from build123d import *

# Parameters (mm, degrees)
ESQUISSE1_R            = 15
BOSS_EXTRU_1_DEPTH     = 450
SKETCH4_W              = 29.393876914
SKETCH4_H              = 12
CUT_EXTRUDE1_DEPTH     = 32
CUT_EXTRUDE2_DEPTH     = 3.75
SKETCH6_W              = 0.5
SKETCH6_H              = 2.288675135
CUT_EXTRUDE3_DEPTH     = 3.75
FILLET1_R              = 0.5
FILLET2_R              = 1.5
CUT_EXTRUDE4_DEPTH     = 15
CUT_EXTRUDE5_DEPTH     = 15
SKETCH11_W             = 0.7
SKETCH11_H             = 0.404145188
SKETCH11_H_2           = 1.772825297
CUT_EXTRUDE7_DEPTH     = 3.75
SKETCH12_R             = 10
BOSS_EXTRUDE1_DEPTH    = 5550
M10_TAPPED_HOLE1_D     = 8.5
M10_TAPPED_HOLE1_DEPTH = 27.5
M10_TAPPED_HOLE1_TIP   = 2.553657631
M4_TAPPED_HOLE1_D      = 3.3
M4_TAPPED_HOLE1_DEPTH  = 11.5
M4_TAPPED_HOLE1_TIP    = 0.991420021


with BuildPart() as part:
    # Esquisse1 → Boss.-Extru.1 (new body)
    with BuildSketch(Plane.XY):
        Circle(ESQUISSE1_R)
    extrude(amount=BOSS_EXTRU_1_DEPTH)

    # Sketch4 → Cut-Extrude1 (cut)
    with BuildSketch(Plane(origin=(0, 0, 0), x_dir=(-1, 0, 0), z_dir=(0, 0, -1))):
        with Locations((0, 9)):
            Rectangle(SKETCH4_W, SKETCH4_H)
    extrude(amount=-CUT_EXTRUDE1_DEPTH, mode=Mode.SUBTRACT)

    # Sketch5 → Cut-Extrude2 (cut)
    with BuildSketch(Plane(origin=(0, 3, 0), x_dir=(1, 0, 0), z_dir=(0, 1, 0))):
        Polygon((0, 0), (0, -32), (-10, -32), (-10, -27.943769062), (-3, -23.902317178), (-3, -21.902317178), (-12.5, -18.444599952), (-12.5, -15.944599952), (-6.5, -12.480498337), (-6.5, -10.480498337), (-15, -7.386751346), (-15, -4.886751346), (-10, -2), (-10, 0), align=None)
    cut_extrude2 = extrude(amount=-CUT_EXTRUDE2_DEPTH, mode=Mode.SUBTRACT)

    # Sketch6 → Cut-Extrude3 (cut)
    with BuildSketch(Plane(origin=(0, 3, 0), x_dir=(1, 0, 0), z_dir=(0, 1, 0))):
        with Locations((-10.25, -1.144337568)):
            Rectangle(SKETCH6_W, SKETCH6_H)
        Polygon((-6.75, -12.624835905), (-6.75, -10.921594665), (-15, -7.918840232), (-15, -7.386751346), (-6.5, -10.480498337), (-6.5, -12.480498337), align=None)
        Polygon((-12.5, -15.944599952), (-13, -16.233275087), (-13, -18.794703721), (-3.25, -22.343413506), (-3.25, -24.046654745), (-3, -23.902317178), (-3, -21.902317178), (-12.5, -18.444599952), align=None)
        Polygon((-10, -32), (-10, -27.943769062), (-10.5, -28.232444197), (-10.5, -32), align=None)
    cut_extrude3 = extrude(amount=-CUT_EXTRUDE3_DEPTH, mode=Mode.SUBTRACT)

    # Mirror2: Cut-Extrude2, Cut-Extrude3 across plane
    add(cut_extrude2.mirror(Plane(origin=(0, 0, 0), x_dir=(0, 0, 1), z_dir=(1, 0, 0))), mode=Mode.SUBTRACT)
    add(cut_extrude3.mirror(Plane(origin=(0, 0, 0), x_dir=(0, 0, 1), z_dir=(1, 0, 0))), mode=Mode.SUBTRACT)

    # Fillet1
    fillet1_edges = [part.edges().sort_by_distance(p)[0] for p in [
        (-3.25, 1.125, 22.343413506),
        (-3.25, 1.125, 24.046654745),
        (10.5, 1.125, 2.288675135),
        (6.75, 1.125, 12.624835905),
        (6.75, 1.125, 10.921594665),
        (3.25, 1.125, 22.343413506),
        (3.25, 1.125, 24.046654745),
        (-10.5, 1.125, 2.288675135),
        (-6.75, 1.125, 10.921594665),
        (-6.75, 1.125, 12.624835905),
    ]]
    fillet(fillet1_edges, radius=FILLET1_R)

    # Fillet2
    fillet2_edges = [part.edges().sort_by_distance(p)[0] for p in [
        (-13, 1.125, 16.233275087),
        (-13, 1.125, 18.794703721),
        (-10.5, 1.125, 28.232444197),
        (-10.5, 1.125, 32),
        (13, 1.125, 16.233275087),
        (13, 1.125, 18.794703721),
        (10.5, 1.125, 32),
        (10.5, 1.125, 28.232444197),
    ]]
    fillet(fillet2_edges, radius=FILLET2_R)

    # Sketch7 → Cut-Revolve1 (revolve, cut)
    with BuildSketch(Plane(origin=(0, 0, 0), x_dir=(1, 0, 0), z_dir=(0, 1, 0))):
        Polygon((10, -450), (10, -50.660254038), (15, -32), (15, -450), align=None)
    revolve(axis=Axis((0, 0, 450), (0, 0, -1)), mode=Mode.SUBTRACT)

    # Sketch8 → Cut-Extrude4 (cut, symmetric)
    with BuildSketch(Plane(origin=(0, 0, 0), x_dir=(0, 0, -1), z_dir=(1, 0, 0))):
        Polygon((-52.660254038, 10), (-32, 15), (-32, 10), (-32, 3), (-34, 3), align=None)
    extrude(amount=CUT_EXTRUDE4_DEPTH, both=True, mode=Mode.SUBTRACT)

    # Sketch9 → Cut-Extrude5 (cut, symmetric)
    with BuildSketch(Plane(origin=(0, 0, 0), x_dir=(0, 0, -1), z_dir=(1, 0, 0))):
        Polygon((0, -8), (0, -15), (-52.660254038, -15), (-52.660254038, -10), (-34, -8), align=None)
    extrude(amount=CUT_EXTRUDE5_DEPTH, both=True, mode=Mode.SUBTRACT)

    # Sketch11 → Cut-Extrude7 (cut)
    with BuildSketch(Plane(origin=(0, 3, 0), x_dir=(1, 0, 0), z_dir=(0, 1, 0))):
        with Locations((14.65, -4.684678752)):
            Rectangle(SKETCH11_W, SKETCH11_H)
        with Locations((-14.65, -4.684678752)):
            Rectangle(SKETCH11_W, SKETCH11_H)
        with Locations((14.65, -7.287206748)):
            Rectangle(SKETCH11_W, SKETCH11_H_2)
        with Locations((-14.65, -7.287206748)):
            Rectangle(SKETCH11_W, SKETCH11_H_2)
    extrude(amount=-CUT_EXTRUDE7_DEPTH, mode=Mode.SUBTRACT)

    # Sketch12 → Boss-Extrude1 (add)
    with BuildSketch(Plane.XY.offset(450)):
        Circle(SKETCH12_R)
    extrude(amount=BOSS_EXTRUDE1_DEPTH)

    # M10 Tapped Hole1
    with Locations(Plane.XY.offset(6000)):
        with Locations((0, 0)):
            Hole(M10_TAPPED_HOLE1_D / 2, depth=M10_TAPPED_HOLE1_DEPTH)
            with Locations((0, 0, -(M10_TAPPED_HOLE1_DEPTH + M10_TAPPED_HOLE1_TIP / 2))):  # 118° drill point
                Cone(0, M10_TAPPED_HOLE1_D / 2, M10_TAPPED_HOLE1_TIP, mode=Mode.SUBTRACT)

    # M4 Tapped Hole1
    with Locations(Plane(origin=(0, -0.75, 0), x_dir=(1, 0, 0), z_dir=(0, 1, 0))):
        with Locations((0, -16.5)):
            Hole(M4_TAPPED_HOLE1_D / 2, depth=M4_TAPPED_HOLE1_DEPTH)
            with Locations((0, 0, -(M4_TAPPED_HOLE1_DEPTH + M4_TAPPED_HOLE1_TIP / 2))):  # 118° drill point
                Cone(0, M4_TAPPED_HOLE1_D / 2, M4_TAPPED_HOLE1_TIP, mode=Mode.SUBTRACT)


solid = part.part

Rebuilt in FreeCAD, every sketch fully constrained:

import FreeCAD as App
import Part
import Sketcher
from FreeCAD import Vector
Q = App.Units.Quantity


def edges_at(feature, points):
    """Names of the edges that pass closest to the given points."""
    edges = feature.Shape.Edges
    near = lambda p: min(range(len(edges)), key=lambda i: edges[i].distToShape(Part.Vertex(*p))[0])
    return sorted({f"Edge{near(p) + 1}" for p in points})


def add_polygon(sketch, points):
    """Adds a closed chain of lines whose ends are joined by coincident constraints."""
    first, n = sketch.GeometryCount, len(points)
    for a, b in zip(points, points[1:] + points[:1]):
        sketch.addGeometry(Part.LineSegment(App.Vector(*a, 0), App.Vector(*b, 0)), False)
    for i in range(n):
        sketch.addConstraint(Sketcher.Constraint("Coincident", first + i, 2, first + (i + 1) % n, 1))

doc = App.newDocument("Part")
body = doc.addObject("PartDesign::Body", "Body")

sketch1 = doc.addObject("Sketcher::SketchObject", "Sketch")
body.addObject(sketch1)
sketch1.AttachmentSupport = (doc.XY_Plane, [""])
sketch1.MapMode = "FlatFace"
sketch1.addGeometry(Part.Circle(Vector(0, 0, 0), Vector(0, 0, 1), 15), False)
sketch1.addConstraint(Sketcher.Constraint("Coincident", 0, 3, -1, 1))
sketch1.addConstraint(Sketcher.Constraint("Diameter", 0, Q("30 mm")))
pad1 = doc.addObject("PartDesign::Pad", "Pad")
body.addObject(pad1)
pad1.Profile = sketch1
pad1.Length = 450

sketch2 = doc.addObject("Sketcher::SketchObject", "Sketch001")
body.addObject(sketch2)
sketch2.AttachmentSupport = (doc.XY_Plane, [""])
sketch2.MapMode = "FlatFace"
add_polygon(sketch2, [(15, 15), (15, 3), (-15, 3), (-15, 15)])
sketch2.addConstraint(Sketcher.Constraint("Vertical", 0))
sketch2.addConstraint(Sketcher.Constraint("Horizontal", 1))
sketch2.addConstraint(Sketcher.Constraint("Vertical", 2))
sketch2.addConstraint(Sketcher.Constraint("Horizontal", 3))
sketch2.addConstraint(Sketcher.Constraint("DistanceY", 0, 2, 0, 1, Q("12 mm")))
sketch2.addConstraint(Sketcher.Constraint("DistanceY", -1, 1, 0, 2, Q("3 mm")))
sketch2.addConstraint(Sketcher.Constraint("DistanceX", 1, 2, 1, 1, Q("29.393877 mm")))
sketch2.addConstraint(Sketcher.Constraint("DistanceX", -1, 1, 0, 2, Q("14.696938 mm")))
pocket1 = doc.addObject("PartDesign::Pocket", "Pocket")
body.addObject(pocket1)
pocket1.Profile = sketch2
pocket1.Length = 32
pocket1.Reversed = True

sketch3 = doc.addObject("Sketcher::SketchObject", "Sketch002")
body.addObject(sketch3)
sketch3.AttachmentSupport = (doc.XZ_Plane, [""])
sketch3.MapMode = "FlatFace"
sketch3.AttachmentOffset = App.Placement(Vector(0, 0, -3), App.Rotation())
add_polygon(sketch3, [(0, 32), (0, 0), (-10, 0), (-10, 2), (-15, 4.9), (-15, 7.4), (-6.5, 10.5), (-6.5, 12.5), (-12.5, 15.9), (-12.5, 18.4), (-3, 21.9), (-3, 23.9), (-10, 27.9), (-10, 32)])
sketch3.addConstraint(Sketcher.Constraint("Vertical", 0))
sketch3.addConstraint(Sketcher.Constraint("Horizontal", 1))
sketch3.addConstraint(Sketcher.Constraint("Vertical", 2))
sketch3.addConstraint(Sketcher.Constraint("Vertical", 4))
sketch3.addConstraint(Sketcher.Constraint("Vertical", 6))
sketch3.addConstraint(Sketcher.Constraint("Vertical", 8))
sketch3.addConstraint(Sketcher.Constraint("Vertical", 10))
sketch3.addConstraint(Sketcher.Constraint("Vertical", 12))
sketch3.addConstraint(Sketcher.Constraint("Horizontal", 13))
sketch3.addConstraint(Sketcher.Constraint("Coincident", 0, 2, -1, 1))
sketch3.addConstraint(Sketcher.Constraint("Parallel", 3, 7))
sketch3.addConstraint(Sketcher.Constraint("Parallel", 5, 9))
sketch3.addConstraint(Sketcher.Constraint("Parallel", 7, 11))
sketch3.addConstraint(Sketcher.Constraint("Vertical", 2, 2, 11, 2))
sketch3.addConstraint(Sketcher.Constraint("Equal", 2, 6))
sketch3.addConstraint(Sketcher.Constraint("Equal", 4, 8))
sketch3.addConstraint(Sketcher.Constraint("Equal", 6, 10))
sketch3.addConstraint(Sketcher.Constraint("DistanceX", 1, 2, 1, 1, Q("10 mm")))
sketch3.addConstraint(Sketcher.Constraint("DistanceY", 0, 2, 0, 1, Q("32 mm")))
sketch3.addConstraint(Sketcher.Constraint("DistanceY", 2, 1, 2, 2, Q("2 mm")))
sketch3.addConstraint(Sketcher.Constraint("Angle", 3, Q("150 deg")))
sketch3.addConstraint(Sketcher.Constraint("Angle", 5, Q("20 deg")))
sketch3.addConstraint(Sketcher.Constraint("DistanceY", 4, 1, 4, 2, Q("2.5 mm")))
sketch3.addConstraint(Sketcher.Constraint("DistanceX", 3, 2, -1, 1, Q("15 mm")))
sketch3.addConstraint(Sketcher.Constraint("DistanceX", 9, 2, -1, 1, Q("3 mm")))
sketch3.addConstraint(Sketcher.Constraint("DistanceX", 7, 2, 6, 2, Q("6 mm")))
sketch3.addConstraint(Sketcher.Constraint("DistanceX", 5, 2, -1, 1, Q("6.5 mm")))
pocket2 = doc.addObject("PartDesign::Pocket", "Pocket001")
body.addObject(pocket2)
pocket2.Profile = sketch3
pocket2.Length = 3.75
pocket2.Reversed = True

sketch4 = doc.addObject("Sketcher::SketchObject", "Sketch003")
body.addObject(sketch4)
sketch4.AttachmentSupport = (doc.XZ_Plane, [""])
sketch4.MapMode = "FlatFace"
sketch4.AttachmentOffset = App.Placement(Vector(0, 0, -3), App.Rotation())
add_polygon(sketch4, [(-10.5, 0), (-10.5, 2.29), (-10, 2.29), (-10, 0)])
add_polygon(sketch4, [(-6.75, 10.92), (-6.75, 12.62), (-6.5, 12.48), (-6.5, 10.48), (-15, 7.39), (-15, 7.92)])
add_polygon(sketch4, [(-12.5, 15.94), (-13, 16.23), (-13, 18.79), (-3.25, 22.34), (-3.25, 24.05), (-3, 23.9), (-3, 21.9), (-12.5, 18.44)])
add_polygon(sketch4, [(-10, 32), (-10, 27.94), (-10.5, 28.23), (-10.5, 32)])
sketch4.addConstraint(Sketcher.Constraint("Vertical", 0))
sketch4.addConstraint(Sketcher.Constraint("Horizontal", 1))
sketch4.addConstraint(Sketcher.Constraint("Vertical", 2))
sketch4.addConstraint(Sketcher.Constraint("Horizontal", 3))
sketch4.addConstraint(Sketcher.Constraint("Vertical", 4))
sketch4.addConstraint(Sketcher.Constraint("Vertical", 6))
sketch4.addConstraint(Sketcher.Constraint("Vertical", 8))
sketch4.addConstraint(Sketcher.Constraint("Vertical", 11))
sketch4.addConstraint(Sketcher.Constraint("Vertical", 13))
sketch4.addConstraint(Sketcher.Constraint("Vertical", 15))
sketch4.addConstraint(Sketcher.Constraint("Vertical", 17))
sketch4.addConstraint(Sketcher.Constraint("Vertical", 18))
sketch4.addConstraint(Sketcher.Constraint("Vertical", 20))
sketch4.addConstraint(Sketcher.Constraint("Horizontal", 21))
sketch4.addConstraint(Sketcher.Constraint("PointOnObject", 2, 2, -1))
sketch4.addConstraint(Sketcher.Constraint("Parallel", 7, 9))
sketch4.addConstraint(Sketcher.Constraint("Parallel", 5, 10))
sketch4.addConstraint(Sketcher.Constraint("Parallel", 9, 12))
sketch4.addConstraint(Sketcher.Constraint("Parallel", 10, 14))
sketch4.addConstraint(Sketcher.Constraint("Parallel", 12, 16))
sketch4.addConstraint(Sketcher.Constraint("Parallel", 14, 19))
sketch4.addConstraint(Sketcher.Constraint("Vertical", 2, 2, 18, 2))
sketch4.addConstraint(Sketcher.Constraint("Vertical", 3, 2, 19, 2))
sketch4.addConstraint(Sketcher.Constraint("Equal", 4, 13))
sketch4.addConstraint(Sketcher.Constraint("Equal", 6, 15))
sketch4.addConstraint(Sketcher.Constraint("Equal", 5, 14))
sketch4.addConstraint(Sketcher.Constraint("Equal", 10, 19))
sketch4.addConstraint(Sketcher.Constraint("DistanceY", 6, 2, 6, 1, Q("2 mm")))
sketch4.addConstraint(Sketcher.Constraint("Angle", 5, Q("-30 deg")))
sketch4.addConstraint(Sketcher.Constraint("Angle", 7, Q("-160 deg")))
sketch4.addConstraint(Sketcher.Constraint("DistanceX", 1, 1, 1, 2, Q("0.5 mm")))
sketch4.addConstraint(Sketcher.Constraint("DistanceY", 17, 2, 17, 1, Q("2.5 mm")))
sketch4.addConstraint(Sketcher.Constraint("DistanceX", 1, 2, -1, 1, Q("10 mm")))
sketch4.addConstraint(Sketcher.Constraint("DistanceX", 7, 2, -1, 1, Q("15 mm")))
sketch4.addConstraint(Sketcher.Constraint("DistanceX", 10, 2, -1, 1, Q("13 mm")))
sketch4.addConstraint(Sketcher.Constraint("DistanceX", 14, 2, -1, 1, Q("3 mm")))
sketch4.addConstraint(Sketcher.Constraint("DistanceY", -1, 1, 20, 2, Q("32 mm")))
sketch4.addConstraint(Sketcher.Constraint("DistanceX", 0, 2, 5, 2, Q("4 mm")))
sketch4.addConstraint(Sketcher.Constraint("DistanceX", 4, 2, -1, 1, Q("6.75 mm")))
sketch4.addConstraint(Sketcher.Constraint("DistanceY", 4, 1, 4, 2, Q("1.703241 mm")))
sketch4.addConstraint(Sketcher.Constraint("DistanceY", 18, 2, 18, 1, Q("4.056231 mm")))
sketch4.addConstraint(Sketcher.Constraint("DistanceY", -1, 1, 5, 2, Q("12.480498 mm")))
sketch4.addConstraint(Sketcher.Constraint("DistanceY", -1, 1, 16, 2, Q("18.4446 mm")))
sketch4.addConstraint(Sketcher.Constraint("DistanceY", 0, 1, 0, 2, Q("2.288675 mm")))
pocket3 = doc.addObject("PartDesign::Pocket", "Pocket002")
body.addObject(pocket3)
pocket3.Profile = sketch4
pocket3.Length = 3.75
pocket3.Reversed = True
doc.recompute()

mirrored = doc.addObject("PartDesign::Mirrored", "Mirrored")
body.addObject(mirrored)
mirrored.Originals = [pocket2, pocket3]
mirrored.MirrorPlane = (doc.YZ_Plane, [""])
body.Tip = mirrored
doc.recompute()

fillet = doc.addObject("PartDesign::Fillet", "Fillet")
body.addObject(fillet)
fillet.Base = (mirrored, edges_at(mirrored, [
    (-3.25, 1.125, 22.343),
    (-3.25, 1.125, 24.047),
    (10.5, 1.125, 2.289),
    (6.75, 1.125, 12.625),
    (6.75, 1.125, 10.922),
    (3.25, 1.125, 22.343),
    (3.25, 1.125, 24.047),
    (-10.5, 1.125, 2.289),
    (-6.75, 1.125, 10.922),
    (-6.75, 1.125, 12.625),
]))
fillet.Radius = 0.5
doc.recompute()

fillet2 = doc.addObject("PartDesign::Fillet", "Fillet001")
body.addObject(fillet2)
fillet2.Base = (fillet, edges_at(fillet, [
    (-13, 1.125, 16.233),
    (-13, 1.125, 18.795),
    (-10.5, 1.125, 28.232),
    (-10.5, 1.125, 32),
    (13, 1.125, 16.233),
    (13, 1.125, 18.795),
    (10.5, 1.125, 32),
    (10.5, 1.125, 28.232),
]))
fillet2.Radius = 1.5

sketch5 = doc.addObject("Sketcher::SketchObject", "Sketch004")
body.addObject(sketch5)
sketch5.AttachmentSupport = (doc.XZ_Plane, [""])
sketch5.MapMode = "FlatFace"
add_polygon(sketch5, [(10, 51), (10, 450), (15, 450), (15, 32)])
sketch5.addConstraint(Sketcher.Constraint("Vertical", 0))
sketch5.addConstraint(Sketcher.Constraint("Horizontal", 1))
sketch5.addConstraint(Sketcher.Constraint("Vertical", 2))
sketch5.addConstraint(Sketcher.Constraint("DistanceX", 1, 1, 1, 2, Q("5 mm")))
sketch5.addConstraint(Sketcher.Constraint("DistanceY", 2, 2, 2, 1, Q("418 mm")))
sketch5.addConstraint(Sketcher.Constraint("Angle", 3, Q("105 deg")))
sketch5.addConstraint(Sketcher.Constraint("DistanceX", -1, 1, 0, 2, Q("10 mm")))
sketch5.addConstraint(Sketcher.Constraint("DistanceY", -1, 1, 0, 2, Q("450 mm")))
groove = doc.addObject("PartDesign::Groove", "Groove")
body.addObject(groove)
groove.Profile = sketch5
groove.ReferenceAxis = (sketch5, ["V_Axis"])
groove.Angle = 360

sketch6 = doc.addObject("Sketcher::SketchObject", "Sketch005")
body.addObject(sketch6)
sketch6.AttachmentSupport = (doc.YZ_Plane, [""])
sketch6.MapMode = "FlatFace"
add_polygon(sketch6, [(15, 32), (10, 52.7), (3, 34), (3, 32)])
sketch6.addConstraint(Sketcher.Constraint("Vertical", 2))
sketch6.addConstraint(Sketcher.Constraint("Horizontal", 3))
sketch6.addConstraint(Sketcher.Constraint("DistanceX", 3, 1, 3, 2, Q("12 mm")))
sketch6.addConstraint(Sketcher.Constraint("DistanceY", 2, 2, 2, 1, Q("2 mm")))
sketch6.addConstraint(Sketcher.Constraint("DistanceX", -1, 1, 0, 2, Q("10 mm")))
sketch6.addConstraint(Sketcher.Constraint("DistanceX", -1, 1, 1, 2, Q("3 mm")))
sketch6.addConstraint(Sketcher.Constraint("DistanceY", -1, 1, 1, 2, Q("34 mm")))
sketch6.addConstraint(Sketcher.Constraint("Distance", 0, Q("21.256672 mm")))
pocket4 = doc.addObject("PartDesign::Pocket", "Pocket003")
body.addObject(pocket4)
pocket4.Profile = sketch6
pocket4.Length = 30
pocket4.Midplane = True

sketch7 = doc.addObject("Sketcher::SketchObject", "Sketch006")
body.addObject(sketch7)
sketch7.AttachmentSupport = (doc.YZ_Plane, [""])
sketch7.MapMode = "FlatFace"
add_polygon(sketch7, [(-15, 0), (-8, 0), (-8, 34), (-10, 53), (-15, 53)])
sketch7.addConstraint(Sketcher.Constraint("Horizontal", 0))
sketch7.addConstraint(Sketcher.Constraint("Vertical", 1))
sketch7.addConstraint(Sketcher.Constraint("Horizontal", 3))
sketch7.addConstraint(Sketcher.Constraint("Vertical", 4))
sketch7.addConstraint(Sketcher.Constraint("PointOnObject", 0, 2, -1))
sketch7.addConstraint(Sketcher.Constraint("DistanceX", 0, 1, 0, 2, Q("7 mm")))
sketch7.addConstraint(Sketcher.Constraint("DistanceX", 3, 2, 3, 1, Q("5 mm")))
sketch7.addConstraint(Sketcher.Constraint("DistanceY", 1, 1, 1, 2, Q("34 mm")))
sketch7.addConstraint(Sketcher.Constraint("DistanceX", 0, 2, -1, 1, Q("8 mm")))
sketch7.addConstraint(Sketcher.Constraint("DistanceY", 4, 2, 4, 1, Q("52.660254 mm")))
pocket5 = doc.addObject("PartDesign::Pocket", "Pocket004")
body.addObject(pocket5)
pocket5.Profile = sketch7
pocket5.Length = 30
pocket5.Midplane = True

sketch8 = doc.addObject("Sketcher::SketchObject", "Sketch007")
body.addObject(sketch8)
sketch8.AttachmentSupport = (doc.XZ_Plane, [""])
sketch8.MapMode = "FlatFace"
sketch8.AttachmentOffset = App.Placement(Vector(0, 0, -3), App.Rotation())
add_polygon(sketch8, [(14.3, 4.48), (14.3, 4.89), (15, 4.89), (15, 4.48)])
add_polygon(sketch8, [(-15, 4.48), (-15, 4.89), (-14.3, 4.89), (-14.3, 4.48)])
add_polygon(sketch8, [(14.3, 6.4), (14.3, 8.17), (15, 8.17), (15, 6.4)])
add_polygon(sketch8, [(-15, 6.4), (-15, 8.17), (-14.3, 8.17), (-14.3, 6.4)])
sketch8.addConstraint(Sketcher.Constraint("Vertical", 0))
sketch8.addConstraint(Sketcher.Constraint("Horizontal", 1))
sketch8.addConstraint(Sketcher.Constraint("Vertical", 2))
sketch8.addConstraint(Sketcher.Constraint("Horizontal", 3))
sketch8.addConstraint(Sketcher.Constraint("Vertical", 4))
sketch8.addConstraint(Sketcher.Constraint("Horizontal", 5))
sketch8.addConstraint(Sketcher.Constraint("Vertical", 6))
sketch8.addConstraint(Sketcher.Constraint("Horizontal", 7))
sketch8.addConstraint(Sketcher.Constraint("Vertical", 8))
sketch8.addConstraint(Sketcher.Constraint("Horizontal", 9))
sketch8.addConstraint(Sketcher.Constraint("Vertical", 10))
sketch8.addConstraint(Sketcher.Constraint("Horizontal", 11))
sketch8.addConstraint(Sketcher.Constraint("Vertical", 12))
sketch8.addConstraint(Sketcher.Constraint("Horizontal", 13))
sketch8.addConstraint(Sketcher.Constraint("Vertical", 14))
sketch8.addConstraint(Sketcher.Constraint("Horizontal", 15))
sketch8.addConstraint(Sketcher.Constraint("Symmetric", 1, 2, 4, 2, -2))
sketch8.addConstraint(Sketcher.Constraint("Symmetric", 3, 2, 6, 2, -2))
sketch8.addConstraint(Sketcher.Constraint("Symmetric", 9, 2, 12, 2, -2))
sketch8.addConstraint(Sketcher.Constraint("Symmetric", 11, 2, 14, 2, -2))
sketch8.addConstraint(Sketcher.Constraint("Vertical", 3, 2, 8, 2))
sketch8.addConstraint(Sketcher.Constraint("Vertical", 2, 2, 9, 2))
sketch8.addConstraint(Sketcher.Constraint("DistanceX", 1, 1, 1, 2, Q("0.7 mm")))
sketch8.addConstraint(Sketcher.Constraint("DistanceX", -1, 1, 1, 2, Q("15 mm")))
sketch8.addConstraint(Sketcher.Constraint("DistanceY", 0, 1, 0, 2, Q("0.404145 mm")))
sketch8.addConstraint(Sketcher.Constraint("DistanceY", 8, 1, 8, 2, Q("1.772825 mm")))
sketch8.addConstraint(Sketcher.Constraint("DistanceY", -1, 1, 0, 2, Q("4.886751 mm")))
sketch8.addConstraint(Sketcher.Constraint("DistanceY", -1, 1, 8, 2, Q("8.173619 mm")))
pocket6 = doc.addObject("PartDesign::Pocket", "Pocket005")
body.addObject(pocket6)
pocket6.Profile = sketch8
pocket6.Length = 3.75
pocket6.Reversed = True

sketch9 = doc.addObject("Sketcher::SketchObject", "Sketch008")
body.addObject(sketch9)
sketch9.AttachmentSupport = (doc.XY_Plane, [""])
sketch9.MapMode = "FlatFace"
sketch9.AttachmentOffset = App.Placement(Vector(0, 0, 450), App.Rotation())
sketch9.addGeometry(Part.Circle(Vector(0, 0, 0), Vector(0, 0, 1), 10), False)
sketch9.addConstraint(Sketcher.Constraint("Coincident", 0, 3, -1, 1))
sketch9.addConstraint(Sketcher.Constraint("Diameter", 0, Q("20 mm")))
pad2 = doc.addObject("PartDesign::Pad", "Pad001")
body.addObject(pad2)
pad2.Profile = sketch9
pad2.Length = 5550

sketch10 = doc.addObject("Sketcher::SketchObject", "Sketch009")
body.addObject(sketch10)
sketch10.AttachmentSupport = (doc.XY_Plane, [""])
sketch10.MapMode = "FlatFace"
sketch10.AttachmentOffset = App.Placement(Vector(0, 0, 6000), App.Rotation())
sketch10.addGeometry(Part.Circle(Vector(0, 0, 0), Vector(0, 0, 1), 4.2), False)
sketch10.addConstraint(Sketcher.Constraint("Coincident", 0, 3, -1, 1))
sketch10.addConstraint(Sketcher.Constraint("Diameter", 0, Q("8.5 mm")))
doc.recompute()
hole = doc.addObject("PartDesign::Hole", "Hole")
body.addObject(hole)
hole.Profile = sketch10
hole.ThreadType = "None"
hole.Diameter = 8.5
hole.DepthType = "Dimension"
hole.Depth = 27.5
hole.DrillPoint = "Angled"
hole.DrillPointAngle = 118

sketch11 = doc.addObject("Sketcher::SketchObject", "Sketch010")
body.addObject(sketch11)
sketch11.AttachmentSupport = (doc.XZ_Plane, [""])
sketch11.MapMode = "FlatFace"
sketch11.AttachmentOffset = App.Placement(Vector(0, 0, 0.75), App.Rotation())
sketch11.addGeometry(Part.Circle(Vector(0, 16.5, 0), Vector(0, 0, 1), 1.6), False)
sketch11.addConstraint(Sketcher.Constraint("PointOnObject", 0, 3, -2))
sketch11.addConstraint(Sketcher.Constraint("Diameter", 0, Q("3.3 mm")))
sketch11.addConstraint(Sketcher.Constraint("DistanceY", -1, 1, 0, 3, Q("16.5 mm")))
doc.recompute()
hole2 = doc.addObject("PartDesign::Hole", "Hole001")
body.addObject(hole2)
hole2.Profile = sketch11
hole2.ThreadType = "None"
hole2.Diameter = 3.3
hole2.DepthType = "Dimension"
hole2.Depth = 11.5
hole2.DrillPoint = "Angled"
hole2.DrillPointAngle = 118
hole2.Reversed = True

doc.recompute()
